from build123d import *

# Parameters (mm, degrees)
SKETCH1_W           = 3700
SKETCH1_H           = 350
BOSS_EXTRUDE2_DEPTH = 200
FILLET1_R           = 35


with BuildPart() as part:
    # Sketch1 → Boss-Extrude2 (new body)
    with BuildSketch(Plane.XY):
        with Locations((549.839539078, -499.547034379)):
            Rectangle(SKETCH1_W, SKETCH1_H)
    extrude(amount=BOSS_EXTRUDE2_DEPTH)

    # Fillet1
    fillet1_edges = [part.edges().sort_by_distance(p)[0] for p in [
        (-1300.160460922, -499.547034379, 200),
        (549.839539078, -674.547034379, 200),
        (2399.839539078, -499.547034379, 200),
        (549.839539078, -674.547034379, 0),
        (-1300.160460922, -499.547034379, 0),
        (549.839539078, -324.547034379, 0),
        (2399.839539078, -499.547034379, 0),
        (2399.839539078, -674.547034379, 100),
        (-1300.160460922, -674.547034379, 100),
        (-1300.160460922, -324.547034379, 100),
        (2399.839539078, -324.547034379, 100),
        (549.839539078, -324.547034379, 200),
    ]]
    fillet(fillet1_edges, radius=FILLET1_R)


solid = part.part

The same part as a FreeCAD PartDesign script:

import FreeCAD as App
import Part
import Sketcher

V = App.Vector

doc = App.newDocument("Part")
body = doc.addObject("PartDesign::Body", "Body")

# Sketch on XY plane
sketch1 = doc.addObject("Sketcher::SketchObject", "Sketch")
body.addObject(sketch1)
sketch1.AttachmentSupport = (doc.XY_Plane, [""])
sketch1.MapMode = "FlatFace"
sketch1.addGeometry([
    Part.LineSegment(V(-1300, -325, 0), V(-1300, -675, 0)),
    Part.LineSegment(V(-1300, -675, 0), V(2400, -675, 0)),
    Part.LineSegment(V(2400, -675, 0), V(2400, -325, 0)),
    Part.LineSegment(V(2400, -325, 0), V(-1300, -325, 0)),
], False)
sketch1.addConstraint([
    Sketcher.Constraint("Coincident", 0, 2, 1, 1),
    Sketcher.Constraint("Coincident", 1, 2, 2, 1),
    Sketcher.Constraint("Coincident", 2, 2, 3, 1),
    Sketcher.Constraint("Coincident", 3, 2, 0, 1),
    Sketcher.Constraint("Vertical", 0),
    Sketcher.Constraint("Horizontal", 1),
    Sketcher.Constraint("Vertical", 2),
    Sketcher.Constraint("Horizontal", 3),
    Sketcher.Constraint("DistanceX", 1, 1, 1, 2, 3700.0),
    Sketcher.Constraint("DistanceY", 0, 2, 0, 1, 350.0),
    Sketcher.Constraint("DistanceX", 0, 2, -1, 1, 1300.160461),
    Sketcher.Constraint("DistanceY", 0, 2, -1, 1, 674.547034),
])
pad1 = doc.addObject("PartDesign::Pad", "Pad")
body.addObject(pad1)
pad1.Profile = sketch1
pad1.Length = 200
doc.recompute()

fillet = doc.addObject("PartDesign::Fillet", "Fillet")
body.addObject(fillet)
fillet.Base = (pad1, ["Edge1"])
fillet.UseAllEdges = True
fillet.Radius = 35

doc.recompute()
